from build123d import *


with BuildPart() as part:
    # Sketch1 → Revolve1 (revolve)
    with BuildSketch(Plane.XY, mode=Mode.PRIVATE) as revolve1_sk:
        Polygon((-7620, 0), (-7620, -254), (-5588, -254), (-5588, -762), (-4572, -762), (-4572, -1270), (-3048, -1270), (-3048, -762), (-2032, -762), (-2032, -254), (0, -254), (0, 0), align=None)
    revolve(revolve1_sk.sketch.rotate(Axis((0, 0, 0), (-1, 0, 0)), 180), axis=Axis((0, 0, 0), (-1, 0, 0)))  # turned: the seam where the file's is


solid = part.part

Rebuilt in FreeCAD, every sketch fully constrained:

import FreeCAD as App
import Part
import Sketcher

V = App.Vector
Q = App.Units.Quantity


def add_polygon(sketch, points):
    """Adds a closed chain of lines whose ends are joined by coincident constraints."""
    first, n = sketch.GeometryCount, len(points)
    for a, b in zip(points, points[1:] + points[:1]):
        sketch.addGeometry(Part.LineSegment(App.Vector(*a, 0), App.Vector(*b, 0)), False)
    for i in range(n):
        sketch.addConstraint(Sketcher.Constraint("Coincident", first + i, 2, first + (i + 1) % n, 1))

doc = App.newDocument("Part")
params = doc.addObject("Spreadsheet::Sheet", "Params")
for row, (alias, value) in enumerate([
    ("sketch1_width", "80 in"),
    ("sketch1_width2", "40 in"),
    ("sketch1_width3", "60 in"),
    ("sketch1_height", "10 in"),
    ("sketch1_height2", "20 in"),
    ("revolution_angle", "360 deg"),
], start=1):
    params.set(f"A{row}", alias)
    params.set(f"B{row}", "=" + value)
    params.setAlias(f"B{row}", alias)

body = doc.addObject("PartDesign::Body", "Body")

# Sketch on XY plane
sketch1 = body.newObject("Sketcher::SketchObject", "Sketch")
sketch1.AttachmentSupport = (doc.getObject("XY_Plane"), [""])
sketch1.MapMode = "FlatFace"
add_polygon(sketch1, [(-7620, 0), (-7620, -254), (-5588, -254), (-5588, -762), (-4572, -762), (-4572, -1270), (-3048, -1270), (-3048, -762), (-2032, -762), (-2032, -254), (0, -254), (0, 0)])  # lines 0-11
sketch1.addConstraint([
    Sketcher.Constraint("Vertical", 0),
    Sketcher.Constraint("Horizontal", 1),
    Sketcher.Constraint("Vertical", 2),
    Sketcher.Constraint("Horizontal", 3),
    Sketcher.Constraint("Vertical", 4),
    Sketcher.Constraint("Horizontal", 5),
    Sketcher.Constraint("Vertical", 6),
    Sketcher.Constraint("Horizontal", 7),
    Sketcher.Constraint("Vertical", 8),
    Sketcher.Constraint("Horizontal", 9),
    Sketcher.Constraint("Vertical", 10),
    Sketcher.Constraint("Horizontal", 11),
    Sketcher.Constraint("Coincident", 10, 2, -1, 1),
    Sketcher.Constraint("Horizontal", 3, 2, 6, 2),
    Sketcher.Constraint("Horizontal", 1, 2, 8, 2),
    Sketcher.Constraint("Equal", 3, 7),
    Sketcher.Constraint("Equal", 1, 9),
    Sketcher.Constraint("Equal", 2, 4),
    Sketcher.Constraint("DistanceX", 1, 1, 1, 2, Q("80 in")),
    Sketcher.Constraint("DistanceX", 3, 1, 3, 2, Q("40 in")),
    Sketcher.Constraint("DistanceX", 5, 1, 5, 2, Q("60 in")),
    Sketcher.Constraint("DistanceY", 0, 2, 0, 1, Q("10 in")),
    Sketcher.Constraint("DistanceY", 2, 2, 2, 1, Q("20 in")),
])
sketch1.setExpression("Constraints[30]", "Params.sketch1_width")
sketch1.setExpression("Constraints[31]", "Params.sketch1_width2")
sketch1.setExpression("Constraints[32]", "Params.sketch1_width3")
sketch1.setExpression("Constraints[33]", "Params.sketch1_height")
sketch1.setExpression("Constraints[34]", "Params.sketch1_height2")
revolution = body.newObject("PartDesign::Revolution", "Revolution")
revolution.Profile = sketch1
revolution.ReferenceAxis = (sketch1, ["H_Axis"])
revolution.setExpression("Angle", "Params.revolution_angle")

doc.recompute()
